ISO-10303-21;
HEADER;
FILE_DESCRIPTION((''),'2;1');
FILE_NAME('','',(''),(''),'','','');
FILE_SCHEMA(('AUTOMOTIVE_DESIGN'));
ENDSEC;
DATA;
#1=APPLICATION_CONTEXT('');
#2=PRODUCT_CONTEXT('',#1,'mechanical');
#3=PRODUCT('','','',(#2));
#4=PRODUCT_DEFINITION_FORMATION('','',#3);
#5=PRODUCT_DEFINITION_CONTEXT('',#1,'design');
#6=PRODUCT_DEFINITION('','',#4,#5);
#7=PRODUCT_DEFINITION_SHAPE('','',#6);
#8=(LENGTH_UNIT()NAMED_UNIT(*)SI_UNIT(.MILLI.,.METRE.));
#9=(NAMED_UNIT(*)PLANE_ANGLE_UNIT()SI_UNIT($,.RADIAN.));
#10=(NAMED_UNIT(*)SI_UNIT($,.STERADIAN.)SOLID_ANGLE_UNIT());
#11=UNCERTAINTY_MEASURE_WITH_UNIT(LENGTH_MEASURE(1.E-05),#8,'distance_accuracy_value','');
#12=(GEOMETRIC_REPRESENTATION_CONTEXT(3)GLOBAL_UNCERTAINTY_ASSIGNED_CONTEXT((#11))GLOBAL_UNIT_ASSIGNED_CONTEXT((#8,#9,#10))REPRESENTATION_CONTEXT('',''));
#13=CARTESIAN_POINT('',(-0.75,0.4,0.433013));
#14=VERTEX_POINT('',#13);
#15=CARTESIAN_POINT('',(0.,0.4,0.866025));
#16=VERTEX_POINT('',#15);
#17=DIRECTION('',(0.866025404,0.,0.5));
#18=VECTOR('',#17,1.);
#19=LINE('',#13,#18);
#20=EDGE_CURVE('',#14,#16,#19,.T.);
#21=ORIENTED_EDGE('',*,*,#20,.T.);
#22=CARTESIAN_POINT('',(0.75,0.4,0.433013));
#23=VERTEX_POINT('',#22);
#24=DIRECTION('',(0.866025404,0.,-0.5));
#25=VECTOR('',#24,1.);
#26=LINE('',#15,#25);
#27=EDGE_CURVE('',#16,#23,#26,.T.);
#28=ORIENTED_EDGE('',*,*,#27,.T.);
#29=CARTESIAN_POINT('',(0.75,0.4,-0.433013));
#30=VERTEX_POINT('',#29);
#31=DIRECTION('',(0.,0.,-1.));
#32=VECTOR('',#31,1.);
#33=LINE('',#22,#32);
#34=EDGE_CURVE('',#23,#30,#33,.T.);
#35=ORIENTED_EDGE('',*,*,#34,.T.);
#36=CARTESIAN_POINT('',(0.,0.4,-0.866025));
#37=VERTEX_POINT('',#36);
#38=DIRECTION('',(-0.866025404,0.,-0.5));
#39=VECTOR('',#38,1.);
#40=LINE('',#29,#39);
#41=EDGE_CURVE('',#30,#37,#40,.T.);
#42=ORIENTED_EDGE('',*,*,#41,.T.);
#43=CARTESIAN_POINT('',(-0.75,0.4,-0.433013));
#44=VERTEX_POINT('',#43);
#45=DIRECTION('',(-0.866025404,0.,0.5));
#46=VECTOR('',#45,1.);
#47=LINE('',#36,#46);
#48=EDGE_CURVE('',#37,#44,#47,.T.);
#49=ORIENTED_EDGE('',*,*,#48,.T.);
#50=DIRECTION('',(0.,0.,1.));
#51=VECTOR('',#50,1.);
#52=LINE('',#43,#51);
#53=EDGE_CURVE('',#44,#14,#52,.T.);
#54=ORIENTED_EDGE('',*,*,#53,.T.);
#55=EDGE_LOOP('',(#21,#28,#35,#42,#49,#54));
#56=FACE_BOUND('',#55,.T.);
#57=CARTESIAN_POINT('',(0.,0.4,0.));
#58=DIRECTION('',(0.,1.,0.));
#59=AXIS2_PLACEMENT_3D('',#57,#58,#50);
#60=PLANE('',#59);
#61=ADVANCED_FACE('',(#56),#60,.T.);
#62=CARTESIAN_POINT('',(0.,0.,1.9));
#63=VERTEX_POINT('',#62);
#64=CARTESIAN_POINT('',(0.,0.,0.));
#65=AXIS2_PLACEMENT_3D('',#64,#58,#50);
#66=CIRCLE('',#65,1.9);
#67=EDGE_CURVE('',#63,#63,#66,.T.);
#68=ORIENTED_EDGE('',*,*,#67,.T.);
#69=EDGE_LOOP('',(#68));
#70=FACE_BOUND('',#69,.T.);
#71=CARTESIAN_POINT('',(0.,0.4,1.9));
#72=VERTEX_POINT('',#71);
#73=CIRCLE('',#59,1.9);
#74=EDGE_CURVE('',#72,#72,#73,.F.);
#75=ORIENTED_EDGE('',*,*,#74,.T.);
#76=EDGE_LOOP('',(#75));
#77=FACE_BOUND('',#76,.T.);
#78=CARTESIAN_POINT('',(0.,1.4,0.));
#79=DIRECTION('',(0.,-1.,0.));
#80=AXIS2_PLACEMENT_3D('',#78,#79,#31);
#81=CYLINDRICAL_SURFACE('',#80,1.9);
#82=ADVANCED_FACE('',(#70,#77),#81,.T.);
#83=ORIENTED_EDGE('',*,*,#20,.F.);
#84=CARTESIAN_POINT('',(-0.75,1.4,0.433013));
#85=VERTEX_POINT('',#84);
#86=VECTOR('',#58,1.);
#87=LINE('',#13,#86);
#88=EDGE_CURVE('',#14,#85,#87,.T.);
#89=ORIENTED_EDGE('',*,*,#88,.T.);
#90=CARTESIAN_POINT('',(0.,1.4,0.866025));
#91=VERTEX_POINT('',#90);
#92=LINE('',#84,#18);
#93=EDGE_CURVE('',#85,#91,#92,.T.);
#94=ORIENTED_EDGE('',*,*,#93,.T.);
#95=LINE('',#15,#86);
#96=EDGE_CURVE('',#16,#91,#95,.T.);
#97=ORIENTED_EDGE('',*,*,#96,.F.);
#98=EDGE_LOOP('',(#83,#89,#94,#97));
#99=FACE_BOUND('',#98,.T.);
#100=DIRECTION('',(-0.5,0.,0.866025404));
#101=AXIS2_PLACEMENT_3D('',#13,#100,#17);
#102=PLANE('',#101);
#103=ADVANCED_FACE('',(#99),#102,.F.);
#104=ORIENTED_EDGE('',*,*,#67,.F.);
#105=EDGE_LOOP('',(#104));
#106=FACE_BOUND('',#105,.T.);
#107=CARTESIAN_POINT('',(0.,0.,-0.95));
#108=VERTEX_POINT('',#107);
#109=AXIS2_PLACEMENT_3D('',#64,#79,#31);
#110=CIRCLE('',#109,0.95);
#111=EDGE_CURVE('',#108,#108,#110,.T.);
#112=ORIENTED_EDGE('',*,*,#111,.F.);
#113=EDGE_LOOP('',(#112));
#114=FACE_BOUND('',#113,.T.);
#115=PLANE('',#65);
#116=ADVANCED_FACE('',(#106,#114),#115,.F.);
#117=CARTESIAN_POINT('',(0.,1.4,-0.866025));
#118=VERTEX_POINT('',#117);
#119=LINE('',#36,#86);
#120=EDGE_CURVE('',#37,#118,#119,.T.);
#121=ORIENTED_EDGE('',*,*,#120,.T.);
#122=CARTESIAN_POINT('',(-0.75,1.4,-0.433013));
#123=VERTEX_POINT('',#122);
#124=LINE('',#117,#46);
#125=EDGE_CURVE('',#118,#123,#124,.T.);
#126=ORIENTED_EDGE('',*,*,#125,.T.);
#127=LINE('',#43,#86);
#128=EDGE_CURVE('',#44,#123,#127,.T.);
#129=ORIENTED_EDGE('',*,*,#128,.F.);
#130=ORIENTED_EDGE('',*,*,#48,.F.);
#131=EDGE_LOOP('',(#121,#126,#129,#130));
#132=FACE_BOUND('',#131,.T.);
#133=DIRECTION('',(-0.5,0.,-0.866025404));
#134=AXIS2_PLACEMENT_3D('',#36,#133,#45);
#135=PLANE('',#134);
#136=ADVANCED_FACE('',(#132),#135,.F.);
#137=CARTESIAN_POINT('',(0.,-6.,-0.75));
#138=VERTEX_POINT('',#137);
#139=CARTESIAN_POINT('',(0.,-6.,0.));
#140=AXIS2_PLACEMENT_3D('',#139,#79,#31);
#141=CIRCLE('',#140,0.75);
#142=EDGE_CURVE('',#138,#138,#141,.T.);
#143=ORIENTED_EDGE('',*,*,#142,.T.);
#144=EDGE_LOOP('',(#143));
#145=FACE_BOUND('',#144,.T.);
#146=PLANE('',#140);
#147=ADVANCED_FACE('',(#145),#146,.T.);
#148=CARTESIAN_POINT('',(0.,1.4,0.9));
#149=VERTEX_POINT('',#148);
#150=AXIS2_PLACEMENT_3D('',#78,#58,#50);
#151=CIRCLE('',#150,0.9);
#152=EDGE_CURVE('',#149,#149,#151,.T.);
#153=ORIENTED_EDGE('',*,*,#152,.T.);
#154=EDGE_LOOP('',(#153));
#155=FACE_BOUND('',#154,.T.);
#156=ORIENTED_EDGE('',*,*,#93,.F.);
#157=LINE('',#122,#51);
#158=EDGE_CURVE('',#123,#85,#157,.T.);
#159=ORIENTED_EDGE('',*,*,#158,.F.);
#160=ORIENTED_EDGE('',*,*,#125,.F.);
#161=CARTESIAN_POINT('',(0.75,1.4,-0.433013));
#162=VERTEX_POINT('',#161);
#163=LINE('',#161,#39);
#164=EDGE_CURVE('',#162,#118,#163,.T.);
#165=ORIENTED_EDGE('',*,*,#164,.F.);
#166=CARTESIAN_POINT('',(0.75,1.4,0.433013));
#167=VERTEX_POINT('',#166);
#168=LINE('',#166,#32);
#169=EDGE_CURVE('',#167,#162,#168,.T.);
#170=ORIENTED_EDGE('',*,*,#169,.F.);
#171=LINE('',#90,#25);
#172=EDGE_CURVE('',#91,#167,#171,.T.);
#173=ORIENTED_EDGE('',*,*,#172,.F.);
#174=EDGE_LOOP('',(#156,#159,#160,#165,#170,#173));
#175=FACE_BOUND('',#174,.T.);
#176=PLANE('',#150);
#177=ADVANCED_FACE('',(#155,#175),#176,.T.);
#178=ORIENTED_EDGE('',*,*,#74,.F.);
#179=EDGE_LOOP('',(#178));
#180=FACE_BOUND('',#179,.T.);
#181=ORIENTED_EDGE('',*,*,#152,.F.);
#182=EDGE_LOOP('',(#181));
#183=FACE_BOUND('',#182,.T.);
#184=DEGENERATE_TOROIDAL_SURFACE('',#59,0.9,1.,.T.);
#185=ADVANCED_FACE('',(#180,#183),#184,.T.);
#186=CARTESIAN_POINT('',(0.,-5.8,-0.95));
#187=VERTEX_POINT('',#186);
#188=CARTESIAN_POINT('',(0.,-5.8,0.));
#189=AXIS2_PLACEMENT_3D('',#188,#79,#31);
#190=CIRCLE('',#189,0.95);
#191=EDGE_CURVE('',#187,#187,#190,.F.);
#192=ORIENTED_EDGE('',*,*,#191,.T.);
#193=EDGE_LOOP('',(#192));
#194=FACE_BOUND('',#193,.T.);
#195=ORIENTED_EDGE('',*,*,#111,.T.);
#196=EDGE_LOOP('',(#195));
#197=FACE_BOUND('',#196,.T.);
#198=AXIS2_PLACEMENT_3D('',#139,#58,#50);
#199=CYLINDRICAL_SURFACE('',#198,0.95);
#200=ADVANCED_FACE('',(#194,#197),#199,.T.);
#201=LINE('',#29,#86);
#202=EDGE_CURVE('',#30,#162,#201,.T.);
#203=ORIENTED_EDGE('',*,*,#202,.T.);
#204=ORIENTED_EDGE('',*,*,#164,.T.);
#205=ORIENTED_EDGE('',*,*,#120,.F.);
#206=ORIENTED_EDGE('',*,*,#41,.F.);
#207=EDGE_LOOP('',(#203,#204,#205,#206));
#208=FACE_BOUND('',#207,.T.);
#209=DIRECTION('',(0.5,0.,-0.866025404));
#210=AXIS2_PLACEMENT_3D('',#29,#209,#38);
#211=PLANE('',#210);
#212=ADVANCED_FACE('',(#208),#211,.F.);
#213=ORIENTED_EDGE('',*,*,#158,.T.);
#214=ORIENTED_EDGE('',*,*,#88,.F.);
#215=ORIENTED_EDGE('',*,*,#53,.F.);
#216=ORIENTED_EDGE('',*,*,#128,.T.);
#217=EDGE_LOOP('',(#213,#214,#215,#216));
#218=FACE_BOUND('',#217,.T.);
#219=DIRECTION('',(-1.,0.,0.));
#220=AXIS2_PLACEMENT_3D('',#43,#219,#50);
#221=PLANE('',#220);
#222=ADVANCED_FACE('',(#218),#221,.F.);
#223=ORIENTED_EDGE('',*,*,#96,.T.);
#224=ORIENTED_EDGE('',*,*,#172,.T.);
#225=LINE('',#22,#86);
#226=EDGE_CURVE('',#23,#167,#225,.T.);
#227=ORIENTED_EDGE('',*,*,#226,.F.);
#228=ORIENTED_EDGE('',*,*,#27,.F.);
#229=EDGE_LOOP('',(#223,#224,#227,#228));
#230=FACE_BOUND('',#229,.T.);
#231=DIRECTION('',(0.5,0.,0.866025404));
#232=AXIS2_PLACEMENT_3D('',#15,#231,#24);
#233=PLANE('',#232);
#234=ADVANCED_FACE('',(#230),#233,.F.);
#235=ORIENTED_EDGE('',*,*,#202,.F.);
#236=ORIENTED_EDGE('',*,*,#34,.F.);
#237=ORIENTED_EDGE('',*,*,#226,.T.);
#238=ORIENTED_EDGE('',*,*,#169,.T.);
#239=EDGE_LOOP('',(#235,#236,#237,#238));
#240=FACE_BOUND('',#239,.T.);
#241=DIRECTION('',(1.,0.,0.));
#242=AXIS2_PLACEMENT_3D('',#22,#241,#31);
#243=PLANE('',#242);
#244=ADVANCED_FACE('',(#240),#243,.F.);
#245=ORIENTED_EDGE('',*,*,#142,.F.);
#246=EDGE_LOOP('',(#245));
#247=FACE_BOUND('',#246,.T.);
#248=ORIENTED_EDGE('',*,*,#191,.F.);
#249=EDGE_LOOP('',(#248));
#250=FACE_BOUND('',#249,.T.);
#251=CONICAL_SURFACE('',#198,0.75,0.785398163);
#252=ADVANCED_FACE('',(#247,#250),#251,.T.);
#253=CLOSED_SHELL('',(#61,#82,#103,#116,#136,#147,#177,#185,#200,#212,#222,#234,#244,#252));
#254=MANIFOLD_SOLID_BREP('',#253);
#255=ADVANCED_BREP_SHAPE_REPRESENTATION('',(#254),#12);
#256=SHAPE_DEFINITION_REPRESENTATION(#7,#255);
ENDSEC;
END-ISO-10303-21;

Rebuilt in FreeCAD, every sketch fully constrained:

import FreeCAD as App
import Part
import Sketcher
from FreeCAD import Vector
Q = App.Units.Quantity


def edges_at(feature, points):
    """Names of the edges that pass closest to the given points."""
    edges = feature.Shape.Edges
    near = lambda p: min(range(len(edges)), key=lambda i: edges[i].distToShape(Part.Vertex(*p))[0])
    return sorted({f"Edge{near(p) + 1}" for p in points})

doc = App.newDocument("Part")
body = doc.addObject("PartDesign::Body", "Body")

# Sketch on XZ plane
sketch1 = doc.addObject("Sketcher::SketchObject", "Sketch")
body.addObject(sketch1)
sketch1.AttachmentSupport = (doc.XZ_Plane, [""])
sketch1.MapMode = "FlatFace"
sketch1.addGeometry(Part.Circle(Vector(0, 0, 0), Vector(0, 0, 1), 1.9), False)
sketch1.addConstraint(Sketcher.Constraint("Coincident", 0, 3, -1, 1))
sketch1.addConstraint(Sketcher.Constraint("Diameter", 0, 3.8))
pad1 = doc.addObject("PartDesign::Pad", "Pad")
body.addObject(pad1)
pad1.Profile = sketch1
pad1.Length = 1.4
pad1.Reversed = True

# Sketch on XZ plane
sketch2 = doc.addObject("Sketcher::SketchObject", "Sketch001")
body.addObject(sketch2)
sketch2.AttachmentSupport = (doc.XZ_Plane, [""])
sketch2.MapMode = "FlatFace"
sketch2.AttachmentOffset = App.Placement(Vector(0, 0, -1.4), App.Rotation())
sketch2.addGeometry(Part.LineSegment(Vector(0, 0.9, 0), Vector(0.8, 0.4, 0)), False)
sketch2.addGeometry(Part.LineSegment(Vector(0.8, 0.4, 0), Vector(0.8, -0.4, 0)), False)
sketch2.addGeometry(Part.LineSegment(Vector(0.8, -0.4, 0), Vector(0, -0.9, 0)), False)
sketch2.addGeometry(Part.LineSegment(Vector(0, -0.9, 0), Vector(-0.8, -0.4, 0)), False)
sketch2.addGeometry(Part.LineSegment(Vector(-0.8, -0.4, 0), Vector(-0.8, 0.4, 0)), False)
sketch2.addGeometry(Part.LineSegment(Vector(-0.8, 0.4, 0), Vector(0, 0.9, 0)), False)
sketch2.addConstraint(Sketcher.Constraint("Coincident", 0, 2, 1, 1))
sketch2.addConstraint(Sketcher.Constraint("Coincident", 1, 2, 2, 1))
sketch2.addConstraint(Sketcher.Constraint("Coincident", 2, 2, 3, 1))
sketch2.addConstraint(Sketcher.Constraint("Coincident", 3, 2, 4, 1))
sketch2.addConstraint(Sketcher.Constraint("Coincident", 4, 2, 5, 1))
sketch2.addConstraint(Sketcher.Constraint("Coincident", 5, 2, 0, 1))
sketch2.addConstraint(Sketcher.Constraint("Vertical", 1))
sketch2.addConstraint(Sketcher.Constraint("Vertical", 4))
sketch2.addConstraint(Sketcher.Constraint("Symmetric", 0, 2, 3, 2, -1, 1))
sketch2.addConstraint(Sketcher.Constraint("Symmetric", 2, 2, 5, 2, -1, 1))
sketch2.addConstraint(Sketcher.Constraint("PointOnObject", 2, 2, -2))
sketch2.addConstraint(Sketcher.Constraint("Parallel", 2, 5))
sketch2.addConstraint(Sketcher.Constraint("Horizontal", 1, 2, 3, 2))
sketch2.addConstraint(Sketcher.Constraint("Angle", 0, Q("-30 deg")))
sketch2.addConstraint(Sketcher.Constraint("DistanceX", 3, 2, 1, 2, 1.5))
sketch2.addConstraint(Sketcher.Constraint("DistanceY", 1, 2, 1, 1, 0.866025))
pocket1 = doc.addObject("PartDesign::Pocket", "Pocket")
body.addObject(pocket1)
pocket1.Profile = sketch2
pocket1.Length = 1
pocket1.Reversed = True
doc.recompute()

fillet = doc.addObject("PartDesign::Fillet", "Fillet")
body.addObject(fillet)
fillet.Base = (pocket1, edges_at(pocket1, [(-1.9, 1.4, 0)]))
fillet.Radius = 1

# Sketch on XZ plane
sketch3 = doc.addObject("Sketcher::SketchObject", "Sketch002")
body.addObject(sketch3)
sketch3.AttachmentSupport = (doc.XZ_Plane, [""])
sketch3.MapMode = "FlatFace"
sketch3.addGeometry(Part.Circle(Vector(0, 0, 0), Vector(0, 0, 1), 0.9), False)
sketch3.addConstraint(Sketcher.Constraint("Coincident", 0, 3, -1, 1))
sketch3.addConstraint(Sketcher.Constraint("Diameter", 0, 1.9))
pad2 = doc.addObject("PartDesign::Pad", "Pad001")
body.addObject(pad2)
pad2.Profile = sketch3
pad2.Length = 6
doc.recompute()

chamfer = doc.addObject("PartDesign::Chamfer", "Chamfer")
body.addObject(chamfer)
chamfer.Base = (pad2, edges_at(pad2, [(-0.95, -6, 0)]))
chamfer.Size = 0.2

doc.recompute()
